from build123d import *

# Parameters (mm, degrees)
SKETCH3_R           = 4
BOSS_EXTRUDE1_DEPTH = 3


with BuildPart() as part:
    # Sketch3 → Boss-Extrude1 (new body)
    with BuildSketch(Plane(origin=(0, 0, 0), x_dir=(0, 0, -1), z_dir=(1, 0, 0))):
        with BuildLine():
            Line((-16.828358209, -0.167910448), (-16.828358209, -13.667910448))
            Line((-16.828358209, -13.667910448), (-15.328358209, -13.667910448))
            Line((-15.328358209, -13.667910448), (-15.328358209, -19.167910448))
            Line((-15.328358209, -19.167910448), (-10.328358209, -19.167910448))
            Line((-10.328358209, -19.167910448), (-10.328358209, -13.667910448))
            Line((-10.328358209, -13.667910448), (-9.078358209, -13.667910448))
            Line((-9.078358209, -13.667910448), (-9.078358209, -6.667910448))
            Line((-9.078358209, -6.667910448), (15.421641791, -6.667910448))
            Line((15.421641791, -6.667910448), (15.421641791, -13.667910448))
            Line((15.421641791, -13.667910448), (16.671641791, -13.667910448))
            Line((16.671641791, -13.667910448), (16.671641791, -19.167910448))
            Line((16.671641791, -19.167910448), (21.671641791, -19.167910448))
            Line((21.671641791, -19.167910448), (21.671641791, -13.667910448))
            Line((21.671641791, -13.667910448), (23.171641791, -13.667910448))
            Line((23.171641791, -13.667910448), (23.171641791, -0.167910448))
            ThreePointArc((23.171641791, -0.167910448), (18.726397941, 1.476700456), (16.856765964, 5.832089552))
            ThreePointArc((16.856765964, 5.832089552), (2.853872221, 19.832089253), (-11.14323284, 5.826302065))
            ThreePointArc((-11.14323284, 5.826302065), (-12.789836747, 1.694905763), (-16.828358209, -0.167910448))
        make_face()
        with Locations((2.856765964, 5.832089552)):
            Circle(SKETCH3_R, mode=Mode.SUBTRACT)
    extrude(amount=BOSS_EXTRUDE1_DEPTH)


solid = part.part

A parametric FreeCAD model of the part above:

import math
import FreeCAD as App
import Part
import Sketcher

V = App.Vector

doc = App.newDocument("Part")
body = doc.addObject("PartDesign::Body", "Body")

# Sketch on YZ plane
sketch1 = doc.addObject("Sketcher::SketchObject", "Sketch")
body.addObject(sketch1)
sketch1.AttachmentSupport = (doc.YZ_Plane, [""])
sketch1.MapMode = "FlatFace"
sketch1.addGeometry([
    Part.LineSegment(V(-0.2, 16.8, 0), V(-13.7, 16.8, 0)),  # 0
    Part.LineSegment(V(-13.7, 16.8, 0), V(-13.7, 15.3, 0)),  # 1
    Part.LineSegment(V(-13.7, 15.3, 0), V(-19.2, 15.3, 0)),  # 2
    Part.LineSegment(V(-19.2, 15.3, 0), V(-19.2, 10.3, 0)),  # 3
    Part.LineSegment(V(-19.2, 10.3, 0), V(-13.7, 10.3, 0)),  # 4
    Part.LineSegment(V(-13.7, 10.3, 0), V(-13.7, 9.1, 0)),  # 5
    Part.LineSegment(V(-13.7, 9.1, 0), V(-6.7, 9.1, 0)),  # 6
    Part.LineSegment(V(-6.7, 9.1, 0), V(-6.7, -15.4, 0)),  # 7
    Part.LineSegment(V(-6.7, -15.4, 0), V(-13.7, -15.4, 0)),  # 8
    Part.LineSegment(V(-13.7, -15.4, 0), V(-13.7, -16.7, 0)),  # 9
    Part.LineSegment(V(-13.7, -16.7, 0), V(-19.2, -16.7, 0)),  # 10
    Part.LineSegment(V(-19.2, -16.7, 0), V(-19.2, -21.7, 0)),  # 11
    Part.LineSegment(V(-19.2, -21.7, 0), V(-13.7, -21.7, 0)),  # 12
    Part.LineSegment(V(-13.7, -21.7, 0), V(-13.7, -23.2, 0)),  # 13
    Part.LineSegment(V(-13.7, -23.2, 0), V(-0.2, -23.2, 0)),  # 14
    Part.ArcOfCircle(Part.Circle(V(5.8, -22.9, 0), V(0, 0, 1), 6), math.radians(90), math.radians(183)),  # 15
    Part.ArcOfCircle(Part.Circle(V(5.8, -2.9, 0), V(0, 0, 1), 14), math.radians(-90), math.radians(90)),  # 16
    Part.ArcOfCircle(Part.Circle(V(5.8, 17.1, 0), V(0, 0, 1), 6), math.radians(-177), math.radians(-90)),  # 17
    Part.Circle(V(5.8, -2.9, 0), V(0, 0, 1), 4),  # 18
], False)
sketch1.addConstraint([
    Sketcher.Constraint("Coincident", 0, 2, 1, 1),
    Sketcher.Constraint("Coincident", 1, 2, 2, 1),
    Sketcher.Constraint("Coincident", 2, 2, 3, 1),
    Sketcher.Constraint("Coincident", 3, 2, 4, 1),
    Sketcher.Constraint("Coincident", 4, 2, 5, 1),
    Sketcher.Constraint("Coincident", 5, 2, 6, 1),
    Sketcher.Constraint("Coincident", 6, 2, 7, 1),
    Sketcher.Constraint("Coincident", 7, 2, 8, 1),
    Sketcher.Constraint("Coincident", 8, 2, 9, 1),
    Sketcher.Constraint("Coincident", 9, 2, 10, 1),
    Sketcher.Constraint("Coincident", 10, 2, 11, 1),
    Sketcher.Constraint("Coincident", 11, 2, 12, 1),
    Sketcher.Constraint("Coincident", 12, 2, 13, 1),
    Sketcher.Constraint("Coincident", 13, 2, 14, 1),
    Sketcher.Constraint("Coincident", 14, 2, 15, 2),
    Sketcher.Constraint("Tangent", 15, 1, 16, 1),
    Sketcher.Constraint("Tangent", 16, 2, 17, 2),
    Sketcher.Constraint("Coincident", 17, 1, 0, 1),
    Sketcher.Constraint("Horizontal", 0),
    Sketcher.Constraint("Vertical", 1),
    Sketcher.Constraint("Horizontal", 2),
    Sketcher.Constraint("Vertical", 3),
    Sketcher.Constraint("Horizontal", 4),
    Sketcher.Constraint("Vertical", 5),
    Sketcher.Constraint("Horizontal", 6),
    Sketcher.Constraint("Vertical", 7),
    Sketcher.Constraint("Horizontal", 8),
    Sketcher.Constraint("Vertical", 9),
    Sketcher.Constraint("Horizontal", 10),
    Sketcher.Constraint("Vertical", 11),
    Sketcher.Constraint("Horizontal", 12),
    Sketcher.Constraint("Vertical", 13),
    Sketcher.Constraint("Horizontal", 14),
    Sketcher.Constraint("Coincident", 18, 3, 16, 3),
    Sketcher.Constraint("Vertical", 15, 3, 16, 3),
    Sketcher.Constraint("Vertical", 1, 2, 4, 2),
    Sketcher.Constraint("Vertical", 5, 2, 8, 2),
    Sketcher.Constraint("Vertical", 3, 2, 10, 2),
    Sketcher.Constraint("Vertical", 9, 2, 12, 2),
    Sketcher.Constraint("Vertical", 14, 2, 17, 1),
    Sketcher.Constraint("Equal", 5, 9),
    Sketcher.Constraint("Equal", 3, 11),
    Sketcher.Constraint("Equal", 1, 13),
    Sketcher.Constraint("Diameter", 18, 8.0),
    Sketcher.Constraint("Radius", 16, 14.0),
    Sketcher.Constraint("Radius", 17, 6.0),
    Sketcher.Constraint("DistanceX", 6, 1, 6, 2, 7.0),
    Sketcher.Constraint("DistanceY", 3, 2, 3, 1, 5.0),
    Sketcher.Constraint("DistanceX", 0, 2, 0, 1, 13.5),
    Sketcher.Constraint("DistanceX", 2, 2, 2, 1, 5.5),
    Sketcher.Constraint("DistanceY", 1, 2, 1, 1, 1.5),
    Sketcher.Constraint("DistanceY", 7, 2, 7, 1, 24.5),
    Sketcher.Constraint("DistanceX", 2, 2, 16, 3, 25.0),
    Sketcher.Constraint("DistanceY", 5, 2, 5, 1, 1.25),
    Sketcher.Constraint("Radius", 15, 6.00785),
    Sketcher.Constraint("DistanceX", -1, 1, 15, 3, 5.83209),
    Sketcher.Constraint("DistanceY", -1, 1, 0, 2, 16.828358),
])
pad1 = doc.addObject("PartDesign::Pad", "Pad")
body.addObject(pad1)
pad1.Profile = sketch1
pad1.Length = 3

doc.recompute()
